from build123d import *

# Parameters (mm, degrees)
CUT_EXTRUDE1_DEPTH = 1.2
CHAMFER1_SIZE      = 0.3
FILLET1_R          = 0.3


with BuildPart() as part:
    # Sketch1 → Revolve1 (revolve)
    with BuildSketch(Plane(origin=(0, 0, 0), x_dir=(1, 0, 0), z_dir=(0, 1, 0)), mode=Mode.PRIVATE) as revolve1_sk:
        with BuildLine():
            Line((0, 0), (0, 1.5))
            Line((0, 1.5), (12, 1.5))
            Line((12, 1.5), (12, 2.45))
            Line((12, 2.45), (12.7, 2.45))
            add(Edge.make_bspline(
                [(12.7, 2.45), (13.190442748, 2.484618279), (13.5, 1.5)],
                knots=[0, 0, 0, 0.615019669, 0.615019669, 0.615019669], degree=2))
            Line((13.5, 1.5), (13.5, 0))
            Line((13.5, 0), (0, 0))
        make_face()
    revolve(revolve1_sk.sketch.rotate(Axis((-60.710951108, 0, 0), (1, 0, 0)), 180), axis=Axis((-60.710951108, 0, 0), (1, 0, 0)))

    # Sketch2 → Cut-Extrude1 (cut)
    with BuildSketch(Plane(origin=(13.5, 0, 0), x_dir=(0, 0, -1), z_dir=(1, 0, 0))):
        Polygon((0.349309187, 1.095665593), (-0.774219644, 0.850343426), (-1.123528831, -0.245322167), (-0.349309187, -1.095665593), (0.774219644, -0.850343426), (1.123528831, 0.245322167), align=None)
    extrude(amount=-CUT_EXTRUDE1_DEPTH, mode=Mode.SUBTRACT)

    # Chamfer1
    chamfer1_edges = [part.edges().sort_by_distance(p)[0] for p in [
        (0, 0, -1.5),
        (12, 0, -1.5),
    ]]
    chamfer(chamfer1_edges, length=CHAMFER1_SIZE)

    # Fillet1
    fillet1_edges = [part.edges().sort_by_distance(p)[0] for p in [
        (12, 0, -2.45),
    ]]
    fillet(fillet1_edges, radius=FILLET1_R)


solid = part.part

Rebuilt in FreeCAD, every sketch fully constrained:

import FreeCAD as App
import Part
import Sketcher
from FreeCAD import Vector
Q = App.Units.Quantity


def edges_at(feature, points):
    """Names of the edges that pass closest to the given points."""
    edges = feature.Shape.Edges
    near = lambda p: min(range(len(edges)), key=lambda i: edges[i].distToShape(Part.Vertex(*p))[0])
    return sorted({f"Edge{near(p) + 1}" for p in points})

doc = App.newDocument("Part")
body = doc.addObject("PartDesign::Body", "Body")

# Sketch on XZ plane
sketch1 = body.newObject("Sketcher::SketchObject", "Sketch")
sketch1.AttachmentSupport = (doc.getObject("XZ_Plane"), [""])
sketch1.MapMode = "FlatFace"
sketch1.addGeometry(Part.LineSegment(Vector(0, -1.5, 0), Vector(0, 0, 0)), False)
sketch1.addGeometry(Part.LineSegment(Vector(0, 0, 0), Vector(13.5, 0, 0)), False)
sketch1.addGeometry(Part.LineSegment(Vector(13.5, 0, 0), Vector(13.5, -1.5, 0)), False)
sketch1.addGeometry(Part.BSplineCurve([Vector(12.7, -2.45, 0), Vector(13.190443, -2.484618, 0), Vector(13.5, -1.5, 0)], [3, 3], [0, 0.615019669], False, 2, [1, 1, 1], False), False)
sketch1.addGeometry(Part.LineSegment(Vector(12.7, -2.45, 0), Vector(12, -2.45, 0)), False)
sketch1.addGeometry(Part.LineSegment(Vector(12, -2.45, 0), Vector(12, -1.5, 0)), False)
sketch1.addGeometry(Part.LineSegment(Vector(12, -1.5, 0), Vector(0, -1.5, 0)), False)
sketch1.addConstraint(Sketcher.Constraint("Block", 3))
sketch1.addConstraint(Sketcher.Constraint("Coincident", 0, 2, 1, 1))
sketch1.addConstraint(Sketcher.Constraint("Coincident", 1, 2, 2, 1))
sketch1.addConstraint(Sketcher.Constraint("Coincident", 2, 2, 3, 2))
sketch1.addConstraint(Sketcher.Constraint("Coincident", 3, 1, 4, 1))
sketch1.addConstraint(Sketcher.Constraint("Coincident", 4, 2, 5, 1))
sketch1.addConstraint(Sketcher.Constraint("Coincident", 5, 2, 6, 1))
sketch1.addConstraint(Sketcher.Constraint("Coincident", 6, 2, 0, 1))
sketch1.addConstraint(Sketcher.Constraint("Vertical", 0))
sketch1.addConstraint(Sketcher.Constraint("Horizontal", 1))
sketch1.addConstraint(Sketcher.Constraint("Vertical", 2))
sketch1.addConstraint(Sketcher.Constraint("Horizontal", 4))
sketch1.addConstraint(Sketcher.Constraint("Vertical", 5))
sketch1.addConstraint(Sketcher.Constraint("Horizontal", 6))
sketch1.addConstraint(Sketcher.Constraint("Coincident", 0, 2, -1, 1))
sketch1.addConstraint(Sketcher.Constraint("Horizontal", 2, 2, 5, 2))
sketch1.addConstraint(Sketcher.Constraint("DistanceX", 6, 2, 6, 1, Q("12 mm")))
revolution = body.newObject("PartDesign::Revolution", "Revolution")
revolution.Profile = sketch1
revolution.ReferenceAxis = (sketch1, ["H_Axis"])
revolution.Angle = 360

# Sketch on YZ plane
sketch2 = body.newObject("Sketcher::SketchObject", "Sketch001")
sketch2.AttachmentSupport = (doc.getObject("YZ_Plane"), [""])
sketch2.MapMode = "FlatFace"
sketch2.AttachmentOffset = App.Placement(Vector(0, 0, 13.5), App.Rotation())
sketch2.addGeometry(Part.LineSegment(Vector(1.095666, -0.349309, 0), Vector(0.850343, 0.77422, 0)), False)
sketch2.addGeometry(Part.LineSegment(Vector(0.850343, 0.77422, 0), Vector(-0.245322, 1.123529, 0)), False)
sketch2.addGeometry(Part.LineSegment(Vector(-0.245322, 1.123529, 0), Vector(-1.095666, 0.349309, 0)), False)
sketch2.addGeometry(Part.LineSegment(Vector(-1.095666, 0.349309, 0), Vector(-0.850343, -0.77422, 0)), False)
sketch2.addGeometry(Part.LineSegment(Vector(-0.850343, -0.77422, 0), Vector(0.245322, -1.123529, 0)), False)
sketch2.addGeometry(Part.LineSegment(Vector(0.245322, -1.123529, 0), Vector(1.095666, -0.349309, 0)), False)
sketch2.addConstraint(Sketcher.Constraint("Coincident", 0, 2, 1, 1))
sketch2.addConstraint(Sketcher.Constraint("Coincident", 1, 2, 2, 1))
sketch2.addConstraint(Sketcher.Constraint("Coincident", 2, 2, 3, 1))
sketch2.addConstraint(Sketcher.Constraint("Coincident", 3, 2, 4, 1))
sketch2.addConstraint(Sketcher.Constraint("Coincident", 4, 2, 5, 1))
sketch2.addConstraint(Sketcher.Constraint("Coincident", 5, 2, 0, 1))
sketch2.addConstraint(Sketcher.Constraint("Symmetric", 0, 2, 3, 2, -1, 1))
sketch2.addConstraint(Sketcher.Constraint("Symmetric", 1, 2, 4, 2, -1, 1))
sketch2.addConstraint(Sketcher.Constraint("Symmetric", 2, 2, 5, 2, -1, 1))
sketch2.addConstraint(Sketcher.Constraint("Equal", 0, 1))
sketch2.addConstraint(Sketcher.Constraint("Equal", 1, 2))
sketch2.addConstraint(Sketcher.Constraint("Distance", 0, Q("1.15 mm")))
sketch2.addConstraint(Sketcher.Constraint("DistanceY", -1, 1, 0, 2, Q("0.77422 mm")))
sketch2.addConstraint(Sketcher.Constraint("DistanceY", -1, 1, 1, 2, Q("1.123529 mm")))
sketch2.addConstraint(Sketcher.Constraint("DistanceY", -1, 1, 2, 2, Q("0.349309 mm")))
pocket1 = body.newObject("PartDesign::Pocket", "Pocket")
pocket1.Profile = sketch2
pocket1.Length = 1.2
doc.recompute()

chamfer = body.newObject("PartDesign::Chamfer", "Chamfer")
chamfer.Base = (pocket1, edges_at(pocket1, [(0, 0, -1.5), (12, 0, -1.5)]))
chamfer.Size = 0.3
doc.recompute()

fillet = body.newObject("PartDesign::Fillet", "Fillet")
fillet.Base = (chamfer, edges_at(chamfer, [(12, 0, -2.45)]))
fillet.Radius = 0.3

doc.recompute()
